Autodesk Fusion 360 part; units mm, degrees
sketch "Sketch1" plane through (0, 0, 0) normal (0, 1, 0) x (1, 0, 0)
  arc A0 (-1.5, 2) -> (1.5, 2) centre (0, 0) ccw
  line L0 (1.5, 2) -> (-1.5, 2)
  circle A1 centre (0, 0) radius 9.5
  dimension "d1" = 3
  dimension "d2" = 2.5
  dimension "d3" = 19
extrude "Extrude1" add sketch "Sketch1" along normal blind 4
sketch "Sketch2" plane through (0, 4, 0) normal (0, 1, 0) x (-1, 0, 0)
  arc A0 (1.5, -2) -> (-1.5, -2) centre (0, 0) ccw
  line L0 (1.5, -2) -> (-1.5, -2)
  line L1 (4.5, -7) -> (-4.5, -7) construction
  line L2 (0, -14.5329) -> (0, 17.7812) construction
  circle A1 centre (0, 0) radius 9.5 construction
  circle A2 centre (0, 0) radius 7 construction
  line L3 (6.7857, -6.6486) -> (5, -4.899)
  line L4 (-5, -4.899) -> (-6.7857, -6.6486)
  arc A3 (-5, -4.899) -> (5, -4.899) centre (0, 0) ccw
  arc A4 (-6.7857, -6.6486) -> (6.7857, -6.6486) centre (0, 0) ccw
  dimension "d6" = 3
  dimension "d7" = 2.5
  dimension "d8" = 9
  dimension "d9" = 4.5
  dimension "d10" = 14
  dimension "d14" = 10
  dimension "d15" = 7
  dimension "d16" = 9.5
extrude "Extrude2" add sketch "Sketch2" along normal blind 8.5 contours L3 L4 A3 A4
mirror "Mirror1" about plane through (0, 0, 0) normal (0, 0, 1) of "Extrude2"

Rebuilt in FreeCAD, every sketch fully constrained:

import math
import FreeCAD as App
import Part
import Sketcher
from FreeCAD import Vector

doc = App.newDocument("Part")
body = doc.addObject("PartDesign::Body", "Body")

# Sketch on XZ plane
sketch1 = body.newObject("Sketcher::SketchObject", "Sketch")
sketch1.AttachmentSupport = (doc.getObject("XZ_Plane"), [""])
sketch1.MapMode = "FlatFace"
sketch1.addGeometry([
    Part.Circle(Vector(0, 0, 0), Vector(0, 0, 1), 9.5),
    Part.ArcOfCircle(Part.Circle(Vector(0, 0, 0), Vector(0, 0, 1), 2.5), math.radians(-53), math.radians(233)),
    Part.LineSegment(Vector(-1.5, -2, 0), Vector(1.5, -2, 0)),
], False)
sketch1.addConstraint([
    Sketcher.Constraint("Coincident", 1, 1, 2, 2),
    Sketcher.Constraint("Coincident", 2, 1, 1, 2),
    Sketcher.Constraint("Horizontal", 2),
    Sketcher.Constraint("Coincident", 0, 3, -1, 1),
    Sketcher.Constraint("Coincident", 1, 3, -1, 1),
    Sketcher.Constraint("Diameter", 0, 19.0),
    Sketcher.Constraint("Radius", 1, 2.5),
    Sketcher.Constraint("DistanceX", 2, 1, 2, 2, 3.0),
])
pad1 = body.newObject("PartDesign::Pad", "Pad")
pad1.Profile = sketch1
pad1.Length = 4
pad1.Reversed = True

# Sketch on XZ plane
sketch2 = body.newObject("Sketcher::SketchObject", "Sketch001")
sketch2.AttachmentSupport = (doc.getObject("XZ_Plane"), [""])
sketch2.MapMode = "FlatFace"
sketch2.AttachmentOffset = App.Placement(Vector(0, 0, -4), App.Rotation())
sketch2.addGeometry([
    Part.ArcOfCircle(Part.Circle(Vector(0, 0, 0), Vector(0, 0, 1), 9.5), math.radians(-136), math.radians(-44)),
    Part.LineSegment(Vector(-6.8, -6.6, 0), Vector(-5, -4.9, 0)),
    Part.ArcOfCircle(Part.Circle(Vector(0, 0, 0), Vector(0, 0, 1), 7), math.radians(-136), math.radians(-44)),
    Part.LineSegment(Vector(5, -4.9, 0), Vector(6.8, -6.6, 0)),
], False)
sketch2.addConstraint([
    Sketcher.Constraint("Coincident", 0, 1, 1, 1),
    Sketcher.Constraint("Coincident", 1, 2, 2, 1),
    Sketcher.Constraint("Coincident", 2, 2, 3, 1),
    Sketcher.Constraint("Coincident", 3, 2, 0, 2),
    Sketcher.Constraint("Coincident", 0, 3, -1, 1),
    Sketcher.Constraint("Coincident", 2, 3, -1, 1),
    Sketcher.Constraint("Horizontal", 1, 2, 2, 2),
    Sketcher.Constraint("Horizontal", 0, 1, 3, 2),
    Sketcher.Constraint("Radius", 2, 7.0),
    Sketcher.Constraint("Radius", 0, 9.5),
    Sketcher.Constraint("DistanceX", 1, 2, 2, 2, 10.0),
    Sketcher.Constraint("DistanceX", 0, 1, -1, 1, 6.7857),
])
pad2 = body.newObject("PartDesign::Pad", "Pad001")
pad2.Profile = sketch2
pad2.Length = 8.5
pad2.Reversed = True
doc.recompute()

mirrored = body.newObject("PartDesign::Mirrored", "Mirrored")
mirrored.Originals = [pad2]
mirrored.MirrorPlane = (doc.getObject("XY_Plane"), [""])
body.Tip = mirrored

doc.recompute()
